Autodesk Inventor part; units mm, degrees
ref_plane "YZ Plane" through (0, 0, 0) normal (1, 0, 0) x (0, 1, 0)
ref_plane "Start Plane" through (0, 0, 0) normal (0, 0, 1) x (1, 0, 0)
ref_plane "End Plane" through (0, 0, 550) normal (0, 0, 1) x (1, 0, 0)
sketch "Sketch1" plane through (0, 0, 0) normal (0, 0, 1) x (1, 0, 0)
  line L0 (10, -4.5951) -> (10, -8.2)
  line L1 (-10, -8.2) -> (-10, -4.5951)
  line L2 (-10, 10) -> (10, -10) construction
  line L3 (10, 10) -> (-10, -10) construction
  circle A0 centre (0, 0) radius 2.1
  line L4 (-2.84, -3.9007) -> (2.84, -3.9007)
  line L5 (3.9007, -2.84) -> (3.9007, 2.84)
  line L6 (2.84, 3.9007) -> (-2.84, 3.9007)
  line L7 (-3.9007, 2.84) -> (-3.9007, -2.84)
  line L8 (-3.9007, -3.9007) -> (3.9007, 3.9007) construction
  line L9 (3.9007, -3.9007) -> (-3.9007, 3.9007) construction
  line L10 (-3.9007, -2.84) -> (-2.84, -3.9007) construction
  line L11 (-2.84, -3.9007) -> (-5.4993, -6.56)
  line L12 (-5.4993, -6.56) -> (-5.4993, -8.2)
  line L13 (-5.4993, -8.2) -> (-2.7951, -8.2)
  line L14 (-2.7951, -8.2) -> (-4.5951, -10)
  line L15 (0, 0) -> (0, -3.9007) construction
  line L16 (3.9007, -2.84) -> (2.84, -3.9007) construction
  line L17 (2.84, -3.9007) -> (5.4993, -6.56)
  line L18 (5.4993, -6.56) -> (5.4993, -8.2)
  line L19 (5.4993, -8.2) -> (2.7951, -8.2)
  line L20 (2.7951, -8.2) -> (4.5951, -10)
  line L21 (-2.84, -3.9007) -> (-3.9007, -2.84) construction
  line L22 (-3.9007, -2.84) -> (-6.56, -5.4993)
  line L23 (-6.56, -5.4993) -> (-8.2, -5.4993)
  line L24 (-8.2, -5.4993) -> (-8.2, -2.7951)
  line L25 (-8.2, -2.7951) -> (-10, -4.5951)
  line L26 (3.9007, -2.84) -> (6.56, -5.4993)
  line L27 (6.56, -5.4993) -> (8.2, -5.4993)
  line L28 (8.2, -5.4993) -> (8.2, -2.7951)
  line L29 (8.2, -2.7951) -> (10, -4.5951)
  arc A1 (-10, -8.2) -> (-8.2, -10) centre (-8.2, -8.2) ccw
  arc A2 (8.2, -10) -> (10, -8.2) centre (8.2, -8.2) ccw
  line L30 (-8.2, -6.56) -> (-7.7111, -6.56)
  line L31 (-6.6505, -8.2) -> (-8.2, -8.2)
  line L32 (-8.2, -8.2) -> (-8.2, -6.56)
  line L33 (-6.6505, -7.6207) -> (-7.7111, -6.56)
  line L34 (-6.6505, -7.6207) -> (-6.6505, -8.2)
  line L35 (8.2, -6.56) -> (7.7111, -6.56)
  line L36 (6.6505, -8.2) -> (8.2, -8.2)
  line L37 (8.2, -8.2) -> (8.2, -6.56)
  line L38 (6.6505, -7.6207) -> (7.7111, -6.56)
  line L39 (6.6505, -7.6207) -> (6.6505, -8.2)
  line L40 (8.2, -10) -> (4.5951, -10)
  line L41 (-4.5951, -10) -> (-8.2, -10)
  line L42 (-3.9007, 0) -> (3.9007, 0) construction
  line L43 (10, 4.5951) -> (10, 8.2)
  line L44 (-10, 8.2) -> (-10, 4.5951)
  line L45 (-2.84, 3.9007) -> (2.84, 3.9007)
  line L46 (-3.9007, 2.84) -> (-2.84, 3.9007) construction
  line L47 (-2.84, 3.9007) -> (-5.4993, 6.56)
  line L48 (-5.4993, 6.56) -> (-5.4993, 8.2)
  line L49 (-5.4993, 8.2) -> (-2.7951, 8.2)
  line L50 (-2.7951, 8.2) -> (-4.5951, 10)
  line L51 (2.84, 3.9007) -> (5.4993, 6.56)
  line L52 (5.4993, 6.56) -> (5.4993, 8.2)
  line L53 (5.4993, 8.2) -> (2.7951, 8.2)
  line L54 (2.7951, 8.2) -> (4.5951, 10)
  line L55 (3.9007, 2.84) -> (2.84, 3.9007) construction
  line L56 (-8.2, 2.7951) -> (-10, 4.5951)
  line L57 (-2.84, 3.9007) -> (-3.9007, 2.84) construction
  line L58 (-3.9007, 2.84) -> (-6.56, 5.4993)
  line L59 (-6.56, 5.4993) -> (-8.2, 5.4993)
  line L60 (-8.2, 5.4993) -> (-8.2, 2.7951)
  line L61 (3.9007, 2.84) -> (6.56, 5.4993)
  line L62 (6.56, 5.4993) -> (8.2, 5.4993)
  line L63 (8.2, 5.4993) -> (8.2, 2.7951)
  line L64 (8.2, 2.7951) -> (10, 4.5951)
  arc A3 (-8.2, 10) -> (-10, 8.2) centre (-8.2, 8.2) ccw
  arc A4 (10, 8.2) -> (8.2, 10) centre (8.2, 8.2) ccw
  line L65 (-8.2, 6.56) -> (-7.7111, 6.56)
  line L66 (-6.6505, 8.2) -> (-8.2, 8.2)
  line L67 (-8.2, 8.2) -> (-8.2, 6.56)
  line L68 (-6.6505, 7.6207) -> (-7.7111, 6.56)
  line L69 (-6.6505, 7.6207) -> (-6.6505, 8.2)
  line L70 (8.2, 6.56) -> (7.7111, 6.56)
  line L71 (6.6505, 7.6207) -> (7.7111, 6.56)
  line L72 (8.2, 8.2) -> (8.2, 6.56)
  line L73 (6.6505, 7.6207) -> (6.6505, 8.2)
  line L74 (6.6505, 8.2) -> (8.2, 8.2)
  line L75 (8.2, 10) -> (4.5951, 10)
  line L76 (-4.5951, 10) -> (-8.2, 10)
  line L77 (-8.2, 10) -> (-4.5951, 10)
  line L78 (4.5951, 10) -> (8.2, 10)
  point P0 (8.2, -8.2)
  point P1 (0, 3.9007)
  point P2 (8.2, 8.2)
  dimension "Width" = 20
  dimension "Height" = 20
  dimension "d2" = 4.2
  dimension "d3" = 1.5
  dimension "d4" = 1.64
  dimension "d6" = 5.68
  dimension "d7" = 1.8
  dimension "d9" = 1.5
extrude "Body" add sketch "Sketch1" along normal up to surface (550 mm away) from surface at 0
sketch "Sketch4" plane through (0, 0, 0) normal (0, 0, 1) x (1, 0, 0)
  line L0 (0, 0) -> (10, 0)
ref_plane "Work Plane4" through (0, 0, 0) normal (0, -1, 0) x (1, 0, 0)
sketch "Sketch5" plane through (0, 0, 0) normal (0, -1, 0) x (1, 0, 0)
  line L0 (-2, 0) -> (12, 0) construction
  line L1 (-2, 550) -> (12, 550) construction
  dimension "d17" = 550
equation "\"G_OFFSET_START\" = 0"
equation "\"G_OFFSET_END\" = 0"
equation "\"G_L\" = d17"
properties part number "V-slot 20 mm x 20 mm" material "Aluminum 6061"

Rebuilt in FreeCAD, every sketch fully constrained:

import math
import FreeCAD as App
import Part
import Sketcher

doc = App.newDocument("Part")
body = doc.addObject("PartDesign::Body", "Body")

# Sketch on XY plane
sketch1 = body.newObject("Sketcher::SketchObject", "Sketch")
sketch1.AttachmentSupport = (doc.getObject("XY_Plane"), [""])
sketch1.MapMode = "FlatFace"
sketch1.addGeometry([
    Part.LineSegment(App.Vector(10, -8.2, 0), App.Vector(10, -4.5951, 0)),  # 0
    Part.LineSegment(App.Vector(10, -4.5951, 0), App.Vector(8.2, -2.7951, 0)),  # 1
    Part.LineSegment(App.Vector(8.2, -2.7951, 0), App.Vector(8.2, -5.4993, 0)),  # 2
    Part.LineSegment(App.Vector(8.2, -5.4993, 0), App.Vector(6.56, -5.4993, 0)),  # 3
    Part.LineSegment(App.Vector(6.56, -5.4993, 0), App.Vector(3.9007, -2.84, 0)),  # 4
    Part.LineSegment(App.Vector(3.9007, -2.84, 0), App.Vector(3.9007, 2.84, 0)),  # 5
    Part.LineSegment(App.Vector(3.9007, 2.84, 0), App.Vector(6.56, 5.4993, 0)),  # 6
    Part.LineSegment(App.Vector(6.56, 5.4993, 0), App.Vector(8.2, 5.4993, 0)),  # 7
    Part.LineSegment(App.Vector(8.2, 5.4993, 0), App.Vector(8.2, 2.7951, 0)),  # 8
    Part.LineSegment(App.Vector(8.2, 2.7951, 0), App.Vector(10, 4.5951, 0)),  # 9
    Part.LineSegment(App.Vector(10, 4.5951, 0), App.Vector(10, 8.2, 0)),  # 10
    Part.ArcOfCircle(Part.Circle(App.Vector(8.2, 8.2, 0), App.Vector(0, 0, 1), 1.8), math.radians(0), math.radians(90)),  # 11
    Part.LineSegment(App.Vector(8.2, 10, 0), App.Vector(4.5951, 10, 0)),  # 12
    Part.LineSegment(App.Vector(4.5951, 10, 0), App.Vector(2.7951, 8.2, 0)),  # 13
    Part.LineSegment(App.Vector(2.7951, 8.2, 0), App.Vector(5.4993, 8.2, 0)),  # 14
    Part.LineSegment(App.Vector(5.4993, 8.2, 0), App.Vector(5.4993, 6.56, 0)),  # 15
    Part.LineSegment(App.Vector(5.4993, 6.56, 0), App.Vector(2.84, 3.9007, 0)),  # 16
    Part.LineSegment(App.Vector(2.84, 3.9007, 0), App.Vector(-2.84, 3.9007, 0)),  # 17
    Part.LineSegment(App.Vector(-2.84, 3.9007, 0), App.Vector(-5.4993, 6.56, 0)),  # 18
    Part.LineSegment(App.Vector(-5.4993, 6.56, 0), App.Vector(-5.4993, 8.2, 0)),  # 19
    Part.LineSegment(App.Vector(-5.4993, 8.2, 0), App.Vector(-2.7951, 8.2, 0)),  # 20
    Part.LineSegment(App.Vector(-2.7951, 8.2, 0), App.Vector(-4.5951, 10, 0)),  # 21
    Part.LineSegment(App.Vector(-4.5951, 10, 0), App.Vector(-8.2, 10, 0)),  # 22
    Part.ArcOfCircle(Part.Circle(App.Vector(-8.2, 8.2, 0), App.Vector(0, 0, 1), 1.8), math.radians(90), math.radians(180)),  # 23
    Part.LineSegment(App.Vector(-10, 8.2, 0), App.Vector(-10, 4.5951, 0)),  # 24
    Part.LineSegment(App.Vector(-10, 4.5951, 0), App.Vector(-8.2, 2.7951, 0)),  # 25
    Part.LineSegment(App.Vector(-8.2, 2.7951, 0), App.Vector(-8.2, 5.4993, 0)),  # 26
    Part.LineSegment(App.Vector(-8.2, 5.4993, 0), App.Vector(-6.56, 5.4993, 0)),  # 27
    Part.LineSegment(App.Vector(-6.56, 5.4993, 0), App.Vector(-3.9007, 2.84, 0)),  # 28
    Part.LineSegment(App.Vector(-3.9007, 2.84, 0), App.Vector(-3.9007, -2.84, 0)),  # 29
    Part.LineSegment(App.Vector(-3.9007, -2.84, 0), App.Vector(-6.56, -5.4993, 0)),  # 30
    Part.LineSegment(App.Vector(-6.56, -5.4993, 0), App.Vector(-8.2, -5.4993, 0)),  # 31
    Part.LineSegment(App.Vector(-8.2, -5.4993, 0), App.Vector(-8.2, -2.7951, 0)),  # 32
    Part.LineSegment(App.Vector(-8.2, -2.7951, 0), App.Vector(-10, -4.5951, 0)),  # 33
    Part.LineSegment(App.Vector(-10, -4.5951, 0), App.Vector(-10, -8.2, 0)),  # 34
    Part.ArcOfCircle(Part.Circle(App.Vector(-8.2, -8.2, 0), App.Vector(0, 0, 1), 1.8), math.radians(180), math.radians(270)),  # 35
    Part.LineSegment(App.Vector(-8.2, -10, 0), App.Vector(-4.5951, -10, 0)),  # 36
    Part.LineSegment(App.Vector(-4.5951, -10, 0), App.Vector(-2.7951, -8.2, 0)),  # 37
    Part.LineSegment(App.Vector(-2.7951, -8.2, 0), App.Vector(-5.4993, -8.2, 0)),  # 38
    Part.LineSegment(App.Vector(-5.4993, -8.2, 0), App.Vector(-5.4993, -6.56, 0)),  # 39
    Part.LineSegment(App.Vector(-5.4993, -6.56, 0), App.Vector(-2.84, -3.9007, 0)),  # 40
    Part.LineSegment(App.Vector(-2.84, -3.9007, 0), App.Vector(2.84, -3.9007, 0)),  # 41
    Part.LineSegment(App.Vector(2.84, -3.9007, 0), App.Vector(5.4993, -6.56, 0)),  # 42
    Part.LineSegment(App.Vector(5.4993, -6.56, 0), App.Vector(5.4993, -8.2, 0)),  # 43
    Part.LineSegment(App.Vector(5.4993, -8.2, 0), App.Vector(2.7951, -8.2, 0)),  # 44
    Part.LineSegment(App.Vector(2.7951, -8.2, 0), App.Vector(4.5951, -10, 0)),  # 45
    Part.LineSegment(App.Vector(4.5951, -10, 0), App.Vector(8.2, -10, 0)),  # 46
    Part.ArcOfCircle(Part.Circle(App.Vector(8.2, -8.2, 0), App.Vector(0, 0, 1), 1.8), math.radians(-90), math.radians(0)),  # 47
    Part.LineSegment(App.Vector(-8.2, -8.2, 0), App.Vector(-8.2, -6.56, 0)),  # 48
    Part.LineSegment(App.Vector(-8.2, -6.56, 0), App.Vector(-7.7111, -6.56, 0)),  # 49
    Part.LineSegment(App.Vector(-7.7111, -6.56, 0), App.Vector(-6.6505, -7.6207, 0)),  # 50
    Part.LineSegment(App.Vector(-6.6505, -7.6207, 0), App.Vector(-6.6505, -8.2, 0)),  # 51
    Part.LineSegment(App.Vector(-6.6505, -8.2, 0), App.Vector(-8.2, -8.2, 0)),  # 52
    Part.LineSegment(App.Vector(7.7111, -6.56, 0), App.Vector(8.2, -6.56, 0)),  # 53
    Part.LineSegment(App.Vector(8.2, -6.56, 0), App.Vector(8.2, -8.2, 0)),  # 54
    Part.LineSegment(App.Vector(8.2, -8.2, 0), App.Vector(6.6505, -8.2, 0)),  # 55
    Part.LineSegment(App.Vector(6.6505, -8.2, 0), App.Vector(6.6505, -7.6207, 0)),  # 56
    Part.LineSegment(App.Vector(6.6505, -7.6207, 0), App.Vector(7.7111, -6.56, 0)),  # 57
    Part.LineSegment(App.Vector(-7.7111, 6.56, 0), App.Vector(-8.2, 6.56, 0)),  # 58
    Part.LineSegment(App.Vector(-8.2, 6.56, 0), App.Vector(-8.2, 8.2, 0)),  # 59
    Part.LineSegment(App.Vector(-8.2, 8.2, 0), App.Vector(-6.6505, 8.2, 0)),  # 60
    Part.LineSegment(App.Vector(-6.6505, 8.2, 0), App.Vector(-6.6505, 7.6207, 0)),  # 61
    Part.LineSegment(App.Vector(-6.6505, 7.6207, 0), App.Vector(-7.7111, 6.56, 0)),  # 62
    Part.Circle(App.Vector(0, 0, 0), App.Vector(0, 0, 1), 2.1),  # 63
    Part.LineSegment(App.Vector(8.2, 8.2, 0), App.Vector(8.2, 6.56, 0)),  # 64
    Part.LineSegment(App.Vector(8.2, 6.56, 0), App.Vector(7.7111, 6.56, 0)),  # 65
    Part.LineSegment(App.Vector(7.7111, 6.56, 0), App.Vector(6.6505, 7.6207, 0)),  # 66
    Part.LineSegment(App.Vector(6.6505, 7.6207, 0), App.Vector(6.6505, 8.2, 0)),  # 67
    Part.LineSegment(App.Vector(6.6505, 8.2, 0), App.Vector(8.2, 8.2, 0)),  # 68
], False)
sketch1.addConstraint([
    Sketcher.Constraint("Coincident", 0, 2, 1, 1),
    Sketcher.Constraint("Coincident", 1, 2, 2, 1),
    Sketcher.Constraint("Coincident", 2, 2, 3, 1),
    Sketcher.Constraint("Coincident", 3, 2, 4, 1),
    Sketcher.Constraint("Coincident", 4, 2, 5, 1),
    Sketcher.Constraint("Coincident", 5, 2, 6, 1),
    Sketcher.Constraint("Coincident", 6, 2, 7, 1),
    Sketcher.Constraint("Coincident", 7, 2, 8, 1),
    Sketcher.Constraint("Coincident", 8, 2, 9, 1),
    Sketcher.Constraint("Coincident", 9, 2, 10, 1),
    Sketcher.Constraint("Tangent", 10, 2, 11, 1),
    Sketcher.Constraint("Tangent", 11, 2, 12, 1),
    Sketcher.Constraint("Coincident", 12, 2, 13, 1),
    Sketcher.Constraint("Coincident", 13, 2, 14, 1),
    Sketcher.Constraint("Coincident", 14, 2, 15, 1),
    Sketcher.Constraint("Coincident", 15, 2, 16, 1),
    Sketcher.Constraint("Coincident", 16, 2, 17, 1),
    Sketcher.Constraint("Coincident", 17, 2, 18, 1),
    Sketcher.Constraint("Coincident", 18, 2, 19, 1),
    Sketcher.Constraint("Coincident", 19, 2, 20, 1),
    Sketcher.Constraint("Coincident", 20, 2, 21, 1),
    Sketcher.Constraint("Coincident", 21, 2, 22, 1),
    Sketcher.Constraint("Tangent", 22, 2, 23, 1),
    Sketcher.Constraint("Tangent", 23, 2, 24, 1),
    Sketcher.Constraint("Coincident", 24, 2, 25, 1),
    Sketcher.Constraint("Coincident", 25, 2, 26, 1),
    Sketcher.Constraint("Coincident", 26, 2, 27, 1),
    Sketcher.Constraint("Coincident", 27, 2, 28, 1),
    Sketcher.Constraint("Coincident", 28, 2, 29, 1),
    Sketcher.Constraint("Coincident", 29, 2, 30, 1),
    Sketcher.Constraint("Coincident", 30, 2, 31, 1),
    Sketcher.Constraint("Coincident", 31, 2, 32, 1),
    Sketcher.Constraint("Coincident", 32, 2, 33, 1),
    Sketcher.Constraint("Coincident", 33, 2, 34, 1),
    Sketcher.Constraint("Tangent", 34, 2, 35, 1),
    Sketcher.Constraint("Tangent", 35, 2, 36, 1),
    Sketcher.Constraint("Coincident", 36, 2, 37, 1),
    Sketcher.Constraint("Coincident", 37, 2, 38, 1),
    Sketcher.Constraint("Coincident", 38, 2, 39, 1),
    Sketcher.Constraint("Coincident", 39, 2, 40, 1),
    Sketcher.Constraint("Coincident", 40, 2, 41, 1),
    Sketcher.Constraint("Coincident", 41, 2, 42, 1),
    Sketcher.Constraint("Coincident", 42, 2, 43, 1),
    Sketcher.Constraint("Coincident", 43, 2, 44, 1),
    Sketcher.Constraint("Coincident", 44, 2, 45, 1),
    Sketcher.Constraint("Coincident", 45, 2, 46, 1),
    Sketcher.Constraint("Tangent", 46, 2, 47, 1),
    Sketcher.Constraint("Tangent", 47, 2, 0, 1),
    Sketcher.Constraint("Coincident", 48, 2, 49, 1),
    Sketcher.Constraint("Coincident", 49, 2, 50, 1),
    Sketcher.Constraint("Coincident", 50, 2, 51, 1),
    Sketcher.Constraint("Coincident", 51, 2, 52, 1),
    Sketcher.Constraint("Coincident", 52, 2, 48, 1),
    Sketcher.Constraint("Coincident", 53, 2, 54, 1),
    Sketcher.Constraint("Coincident", 54, 2, 55, 1),
    Sketcher.Constraint("Coincident", 55, 2, 56, 1),
    Sketcher.Constraint("Coincident", 56, 2, 57, 1),
    Sketcher.Constraint("Coincident", 57, 2, 53, 1),
    Sketcher.Constraint("Coincident", 58, 2, 59, 1),
    Sketcher.Constraint("Coincident", 59, 2, 60, 1),
    Sketcher.Constraint("Coincident", 60, 2, 61, 1),
    Sketcher.Constraint("Coincident", 61, 2, 62, 1),
    Sketcher.Constraint("Coincident", 62, 2, 58, 1),
    Sketcher.Constraint("Coincident", 64, 2, 65, 1),
    Sketcher.Constraint("Coincident", 65, 2, 66, 1),
    Sketcher.Constraint("Coincident", 66, 2, 67, 1),
    Sketcher.Constraint("Coincident", 67, 2, 68, 1),
    Sketcher.Constraint("Coincident", 68, 2, 64, 1),
    Sketcher.Constraint("Vertical", 0),
    Sketcher.Constraint("Vertical", 2),
    Sketcher.Constraint("Horizontal", 3),
    Sketcher.Constraint("Vertical", 5),
    Sketcher.Constraint("Horizontal", 7),
    Sketcher.Constraint("Vertical", 8),
    Sketcher.Constraint("Vertical", 10),
    Sketcher.Constraint("Horizontal", 12),
    Sketcher.Constraint("Horizontal", 14),
    Sketcher.Constraint("Vertical", 15),
    Sketcher.Constraint("Horizontal", 17),
    Sketcher.Constraint("Vertical", 19),
    Sketcher.Constraint("Horizontal", 20),
    Sketcher.Constraint("Horizontal", 22),
    Sketcher.Constraint("Vertical", 24),
    Sketcher.Constraint("Vertical", 26),
    Sketcher.Constraint("Horizontal", 27),
    Sketcher.Constraint("Vertical", 29),
    Sketcher.Constraint("Horizontal", 31),
    Sketcher.Constraint("Vertical", 32),
    Sketcher.Constraint("Vertical", 34),
    Sketcher.Constraint("Horizontal", 36),
    Sketcher.Constraint("Horizontal", 38),
    Sketcher.Constraint("Vertical", 39),
    Sketcher.Constraint("Horizontal", 41),
    Sketcher.Constraint("Vertical", 43),
    Sketcher.Constraint("Horizontal", 44),
    Sketcher.Constraint("Horizontal", 46),
    Sketcher.Constraint("Vertical", 48),
    Sketcher.Constraint("Horizontal", 49),
    Sketcher.Constraint("Vertical", 51),
    Sketcher.Constraint("Horizontal", 52),
    Sketcher.Constraint("Horizontal", 53),
    Sketcher.Constraint("Vertical", 54),
    Sketcher.Constraint("Horizontal", 55),
    Sketcher.Constraint("Vertical", 56),
    Sketcher.Constraint("Horizontal", 58),
    Sketcher.Constraint("Vertical", 59),
    Sketcher.Constraint("Horizontal", 60),
    Sketcher.Constraint("Vertical", 61),
    Sketcher.Constraint("Vertical", 64),
    Sketcher.Constraint("Horizontal", 65),
    Sketcher.Constraint("Vertical", 67),
    Sketcher.Constraint("Horizontal", 68),
    Sketcher.Constraint("Coincident", 63, 3, -1, 1),
    Sketcher.Constraint("Coincident", 52, 2, 35, 3),
    Sketcher.Constraint("Coincident", 54, 2, 47, 3),
    Sketcher.Constraint("Coincident", 59, 2, 23, 3),
    Sketcher.Constraint("Coincident", 68, 2, 11, 3),
    Sketcher.Constraint("Equal", 11, 23),
    Sketcher.Constraint("Equal", 23, 35),
    Sketcher.Constraint("Equal", 35, 47),
    Sketcher.Constraint("Symmetric", 11, 3, 35, 3, -1, 1),
    Sketcher.Constraint("Symmetric", 23, 3, 47, 3, -1, 1),
    Sketcher.Constraint("Symmetric", 1, 2, 25, 2, -1, 1),
    Sketcher.Constraint("Symmetric", 3, 2, 27, 2, -1, 1),
    Sketcher.Constraint("Symmetric", 4, 2, 28, 2, -1, 1),
    Sketcher.Constraint("Symmetric", 6, 2, 30, 2, -1, 1),
    Sketcher.Constraint("Symmetric", 8, 2, 32, 2, -1, 1),
    Sketcher.Constraint("Symmetric", 13, 2, 37, 2, -1, 1),
    Sketcher.Constraint("Symmetric", 15, 2, 39, 2, -1, 1),
    Sketcher.Constraint("Symmetric", 16, 2, 40, 2, -1, 1),
    Sketcher.Constraint("Symmetric", 18, 2, 42, 2, -1, 1),
    Sketcher.Constraint("Symmetric", 20, 2, 44, 2, -1, 1),
    Sketcher.Constraint("Symmetric", 56, 2, 61, 2, -1, 1),
    Sketcher.Constraint("Symmetric", 57, 2, 62, 2, -1, 1),
    Sketcher.Constraint("Symmetric", 49, 2, 65, 2, -1, 1),
    Sketcher.Constraint("Symmetric", 50, 2, 66, 2, -1, 1),
    Sketcher.Constraint("Symmetric", 11, 3, 23, 3, -2),
    Sketcher.Constraint("Symmetric", 15, 2, 18, 2, -2),
    Sketcher.Constraint("Symmetric", 13, 2, 20, 2, -2),
    Sketcher.Constraint("Symmetric", 8, 2, 25, 2, -2),
    Sketcher.Constraint("Symmetric", 6, 2, 27, 2, -2),
    Sketcher.Constraint("Symmetric", 50, 2, 56, 2, -2),
    Sketcher.Constraint("Symmetric", 49, 2, 57, 2, -2),
    Sketcher.Constraint("Parallel", 1, 4),
    Sketcher.Constraint("Perpendicular", 4, 6),
    Sketcher.Constraint("Parallel", 6, 9),
    Sketcher.Constraint("Parallel", 9, 13),
    Sketcher.Constraint("Parallel", 13, 16),
    Sketcher.Constraint("Perpendicular", 16, 18),
    Sketcher.Constraint("Parallel", 18, 21),
    Sketcher.Constraint("Parallel", 21, 25),
    Sketcher.Constraint("Perpendicular", 28, 30),
    Sketcher.Constraint("Parallel", 30, 33),
    Sketcher.Constraint("Parallel", 33, 37),
    Sketcher.Constraint("Perpendicular", 40, 42),
    Sketcher.Constraint("Parallel", 42, 45),
    Sketcher.Constraint("Parallel", 45, 50),
    Sketcher.Constraint("Perpendicular", 50, 57),
    Sketcher.Constraint("Horizontal", 10, 2, 13, 2),
    Sketcher.Constraint("Horizontal", 42, 2, 48, 2),
    Sketcher.Constraint("Vertical", 47, 3, 1, 2),
    Sketcher.Constraint("Equal", 46, 0),
    Sketcher.Constraint("Equal", 44, 2),
    Sketcher.Constraint("Equal", 41, 5),
    Sketcher.Constraint("Equal", 31, 15),
    Sketcher.Constraint("Equal", 6, 16),
    Sketcher.Constraint("Diameter", 63, 4.2),
    Sketcher.Constraint("Radius", 11, 1.8),
    Sketcher.Constraint("Distance", 50, 1.5),
    Sketcher.Constraint("DistanceX", 3, 2, 3, 1, 1.64),
    Sketcher.Constraint("DistanceX", 17, 2, 17, 1, 5.68),
    Sketcher.Constraint("DistanceX", -1, 1, 0, 2, 10.0),
    Sketcher.Constraint("DistanceX", 12, 2, 12, 1, 3.605),
    Sketcher.Constraint("DistanceX", 49, 1, 49, 2, 0.489),
    Sketcher.Constraint("DistanceX", 14, 1, 14, 2, 2.7042),
])
pad1 = body.newObject("PartDesign::Pad", "Pad")
pad1.Profile = sketch1
pad1.Length = 550

doc.recompute()
